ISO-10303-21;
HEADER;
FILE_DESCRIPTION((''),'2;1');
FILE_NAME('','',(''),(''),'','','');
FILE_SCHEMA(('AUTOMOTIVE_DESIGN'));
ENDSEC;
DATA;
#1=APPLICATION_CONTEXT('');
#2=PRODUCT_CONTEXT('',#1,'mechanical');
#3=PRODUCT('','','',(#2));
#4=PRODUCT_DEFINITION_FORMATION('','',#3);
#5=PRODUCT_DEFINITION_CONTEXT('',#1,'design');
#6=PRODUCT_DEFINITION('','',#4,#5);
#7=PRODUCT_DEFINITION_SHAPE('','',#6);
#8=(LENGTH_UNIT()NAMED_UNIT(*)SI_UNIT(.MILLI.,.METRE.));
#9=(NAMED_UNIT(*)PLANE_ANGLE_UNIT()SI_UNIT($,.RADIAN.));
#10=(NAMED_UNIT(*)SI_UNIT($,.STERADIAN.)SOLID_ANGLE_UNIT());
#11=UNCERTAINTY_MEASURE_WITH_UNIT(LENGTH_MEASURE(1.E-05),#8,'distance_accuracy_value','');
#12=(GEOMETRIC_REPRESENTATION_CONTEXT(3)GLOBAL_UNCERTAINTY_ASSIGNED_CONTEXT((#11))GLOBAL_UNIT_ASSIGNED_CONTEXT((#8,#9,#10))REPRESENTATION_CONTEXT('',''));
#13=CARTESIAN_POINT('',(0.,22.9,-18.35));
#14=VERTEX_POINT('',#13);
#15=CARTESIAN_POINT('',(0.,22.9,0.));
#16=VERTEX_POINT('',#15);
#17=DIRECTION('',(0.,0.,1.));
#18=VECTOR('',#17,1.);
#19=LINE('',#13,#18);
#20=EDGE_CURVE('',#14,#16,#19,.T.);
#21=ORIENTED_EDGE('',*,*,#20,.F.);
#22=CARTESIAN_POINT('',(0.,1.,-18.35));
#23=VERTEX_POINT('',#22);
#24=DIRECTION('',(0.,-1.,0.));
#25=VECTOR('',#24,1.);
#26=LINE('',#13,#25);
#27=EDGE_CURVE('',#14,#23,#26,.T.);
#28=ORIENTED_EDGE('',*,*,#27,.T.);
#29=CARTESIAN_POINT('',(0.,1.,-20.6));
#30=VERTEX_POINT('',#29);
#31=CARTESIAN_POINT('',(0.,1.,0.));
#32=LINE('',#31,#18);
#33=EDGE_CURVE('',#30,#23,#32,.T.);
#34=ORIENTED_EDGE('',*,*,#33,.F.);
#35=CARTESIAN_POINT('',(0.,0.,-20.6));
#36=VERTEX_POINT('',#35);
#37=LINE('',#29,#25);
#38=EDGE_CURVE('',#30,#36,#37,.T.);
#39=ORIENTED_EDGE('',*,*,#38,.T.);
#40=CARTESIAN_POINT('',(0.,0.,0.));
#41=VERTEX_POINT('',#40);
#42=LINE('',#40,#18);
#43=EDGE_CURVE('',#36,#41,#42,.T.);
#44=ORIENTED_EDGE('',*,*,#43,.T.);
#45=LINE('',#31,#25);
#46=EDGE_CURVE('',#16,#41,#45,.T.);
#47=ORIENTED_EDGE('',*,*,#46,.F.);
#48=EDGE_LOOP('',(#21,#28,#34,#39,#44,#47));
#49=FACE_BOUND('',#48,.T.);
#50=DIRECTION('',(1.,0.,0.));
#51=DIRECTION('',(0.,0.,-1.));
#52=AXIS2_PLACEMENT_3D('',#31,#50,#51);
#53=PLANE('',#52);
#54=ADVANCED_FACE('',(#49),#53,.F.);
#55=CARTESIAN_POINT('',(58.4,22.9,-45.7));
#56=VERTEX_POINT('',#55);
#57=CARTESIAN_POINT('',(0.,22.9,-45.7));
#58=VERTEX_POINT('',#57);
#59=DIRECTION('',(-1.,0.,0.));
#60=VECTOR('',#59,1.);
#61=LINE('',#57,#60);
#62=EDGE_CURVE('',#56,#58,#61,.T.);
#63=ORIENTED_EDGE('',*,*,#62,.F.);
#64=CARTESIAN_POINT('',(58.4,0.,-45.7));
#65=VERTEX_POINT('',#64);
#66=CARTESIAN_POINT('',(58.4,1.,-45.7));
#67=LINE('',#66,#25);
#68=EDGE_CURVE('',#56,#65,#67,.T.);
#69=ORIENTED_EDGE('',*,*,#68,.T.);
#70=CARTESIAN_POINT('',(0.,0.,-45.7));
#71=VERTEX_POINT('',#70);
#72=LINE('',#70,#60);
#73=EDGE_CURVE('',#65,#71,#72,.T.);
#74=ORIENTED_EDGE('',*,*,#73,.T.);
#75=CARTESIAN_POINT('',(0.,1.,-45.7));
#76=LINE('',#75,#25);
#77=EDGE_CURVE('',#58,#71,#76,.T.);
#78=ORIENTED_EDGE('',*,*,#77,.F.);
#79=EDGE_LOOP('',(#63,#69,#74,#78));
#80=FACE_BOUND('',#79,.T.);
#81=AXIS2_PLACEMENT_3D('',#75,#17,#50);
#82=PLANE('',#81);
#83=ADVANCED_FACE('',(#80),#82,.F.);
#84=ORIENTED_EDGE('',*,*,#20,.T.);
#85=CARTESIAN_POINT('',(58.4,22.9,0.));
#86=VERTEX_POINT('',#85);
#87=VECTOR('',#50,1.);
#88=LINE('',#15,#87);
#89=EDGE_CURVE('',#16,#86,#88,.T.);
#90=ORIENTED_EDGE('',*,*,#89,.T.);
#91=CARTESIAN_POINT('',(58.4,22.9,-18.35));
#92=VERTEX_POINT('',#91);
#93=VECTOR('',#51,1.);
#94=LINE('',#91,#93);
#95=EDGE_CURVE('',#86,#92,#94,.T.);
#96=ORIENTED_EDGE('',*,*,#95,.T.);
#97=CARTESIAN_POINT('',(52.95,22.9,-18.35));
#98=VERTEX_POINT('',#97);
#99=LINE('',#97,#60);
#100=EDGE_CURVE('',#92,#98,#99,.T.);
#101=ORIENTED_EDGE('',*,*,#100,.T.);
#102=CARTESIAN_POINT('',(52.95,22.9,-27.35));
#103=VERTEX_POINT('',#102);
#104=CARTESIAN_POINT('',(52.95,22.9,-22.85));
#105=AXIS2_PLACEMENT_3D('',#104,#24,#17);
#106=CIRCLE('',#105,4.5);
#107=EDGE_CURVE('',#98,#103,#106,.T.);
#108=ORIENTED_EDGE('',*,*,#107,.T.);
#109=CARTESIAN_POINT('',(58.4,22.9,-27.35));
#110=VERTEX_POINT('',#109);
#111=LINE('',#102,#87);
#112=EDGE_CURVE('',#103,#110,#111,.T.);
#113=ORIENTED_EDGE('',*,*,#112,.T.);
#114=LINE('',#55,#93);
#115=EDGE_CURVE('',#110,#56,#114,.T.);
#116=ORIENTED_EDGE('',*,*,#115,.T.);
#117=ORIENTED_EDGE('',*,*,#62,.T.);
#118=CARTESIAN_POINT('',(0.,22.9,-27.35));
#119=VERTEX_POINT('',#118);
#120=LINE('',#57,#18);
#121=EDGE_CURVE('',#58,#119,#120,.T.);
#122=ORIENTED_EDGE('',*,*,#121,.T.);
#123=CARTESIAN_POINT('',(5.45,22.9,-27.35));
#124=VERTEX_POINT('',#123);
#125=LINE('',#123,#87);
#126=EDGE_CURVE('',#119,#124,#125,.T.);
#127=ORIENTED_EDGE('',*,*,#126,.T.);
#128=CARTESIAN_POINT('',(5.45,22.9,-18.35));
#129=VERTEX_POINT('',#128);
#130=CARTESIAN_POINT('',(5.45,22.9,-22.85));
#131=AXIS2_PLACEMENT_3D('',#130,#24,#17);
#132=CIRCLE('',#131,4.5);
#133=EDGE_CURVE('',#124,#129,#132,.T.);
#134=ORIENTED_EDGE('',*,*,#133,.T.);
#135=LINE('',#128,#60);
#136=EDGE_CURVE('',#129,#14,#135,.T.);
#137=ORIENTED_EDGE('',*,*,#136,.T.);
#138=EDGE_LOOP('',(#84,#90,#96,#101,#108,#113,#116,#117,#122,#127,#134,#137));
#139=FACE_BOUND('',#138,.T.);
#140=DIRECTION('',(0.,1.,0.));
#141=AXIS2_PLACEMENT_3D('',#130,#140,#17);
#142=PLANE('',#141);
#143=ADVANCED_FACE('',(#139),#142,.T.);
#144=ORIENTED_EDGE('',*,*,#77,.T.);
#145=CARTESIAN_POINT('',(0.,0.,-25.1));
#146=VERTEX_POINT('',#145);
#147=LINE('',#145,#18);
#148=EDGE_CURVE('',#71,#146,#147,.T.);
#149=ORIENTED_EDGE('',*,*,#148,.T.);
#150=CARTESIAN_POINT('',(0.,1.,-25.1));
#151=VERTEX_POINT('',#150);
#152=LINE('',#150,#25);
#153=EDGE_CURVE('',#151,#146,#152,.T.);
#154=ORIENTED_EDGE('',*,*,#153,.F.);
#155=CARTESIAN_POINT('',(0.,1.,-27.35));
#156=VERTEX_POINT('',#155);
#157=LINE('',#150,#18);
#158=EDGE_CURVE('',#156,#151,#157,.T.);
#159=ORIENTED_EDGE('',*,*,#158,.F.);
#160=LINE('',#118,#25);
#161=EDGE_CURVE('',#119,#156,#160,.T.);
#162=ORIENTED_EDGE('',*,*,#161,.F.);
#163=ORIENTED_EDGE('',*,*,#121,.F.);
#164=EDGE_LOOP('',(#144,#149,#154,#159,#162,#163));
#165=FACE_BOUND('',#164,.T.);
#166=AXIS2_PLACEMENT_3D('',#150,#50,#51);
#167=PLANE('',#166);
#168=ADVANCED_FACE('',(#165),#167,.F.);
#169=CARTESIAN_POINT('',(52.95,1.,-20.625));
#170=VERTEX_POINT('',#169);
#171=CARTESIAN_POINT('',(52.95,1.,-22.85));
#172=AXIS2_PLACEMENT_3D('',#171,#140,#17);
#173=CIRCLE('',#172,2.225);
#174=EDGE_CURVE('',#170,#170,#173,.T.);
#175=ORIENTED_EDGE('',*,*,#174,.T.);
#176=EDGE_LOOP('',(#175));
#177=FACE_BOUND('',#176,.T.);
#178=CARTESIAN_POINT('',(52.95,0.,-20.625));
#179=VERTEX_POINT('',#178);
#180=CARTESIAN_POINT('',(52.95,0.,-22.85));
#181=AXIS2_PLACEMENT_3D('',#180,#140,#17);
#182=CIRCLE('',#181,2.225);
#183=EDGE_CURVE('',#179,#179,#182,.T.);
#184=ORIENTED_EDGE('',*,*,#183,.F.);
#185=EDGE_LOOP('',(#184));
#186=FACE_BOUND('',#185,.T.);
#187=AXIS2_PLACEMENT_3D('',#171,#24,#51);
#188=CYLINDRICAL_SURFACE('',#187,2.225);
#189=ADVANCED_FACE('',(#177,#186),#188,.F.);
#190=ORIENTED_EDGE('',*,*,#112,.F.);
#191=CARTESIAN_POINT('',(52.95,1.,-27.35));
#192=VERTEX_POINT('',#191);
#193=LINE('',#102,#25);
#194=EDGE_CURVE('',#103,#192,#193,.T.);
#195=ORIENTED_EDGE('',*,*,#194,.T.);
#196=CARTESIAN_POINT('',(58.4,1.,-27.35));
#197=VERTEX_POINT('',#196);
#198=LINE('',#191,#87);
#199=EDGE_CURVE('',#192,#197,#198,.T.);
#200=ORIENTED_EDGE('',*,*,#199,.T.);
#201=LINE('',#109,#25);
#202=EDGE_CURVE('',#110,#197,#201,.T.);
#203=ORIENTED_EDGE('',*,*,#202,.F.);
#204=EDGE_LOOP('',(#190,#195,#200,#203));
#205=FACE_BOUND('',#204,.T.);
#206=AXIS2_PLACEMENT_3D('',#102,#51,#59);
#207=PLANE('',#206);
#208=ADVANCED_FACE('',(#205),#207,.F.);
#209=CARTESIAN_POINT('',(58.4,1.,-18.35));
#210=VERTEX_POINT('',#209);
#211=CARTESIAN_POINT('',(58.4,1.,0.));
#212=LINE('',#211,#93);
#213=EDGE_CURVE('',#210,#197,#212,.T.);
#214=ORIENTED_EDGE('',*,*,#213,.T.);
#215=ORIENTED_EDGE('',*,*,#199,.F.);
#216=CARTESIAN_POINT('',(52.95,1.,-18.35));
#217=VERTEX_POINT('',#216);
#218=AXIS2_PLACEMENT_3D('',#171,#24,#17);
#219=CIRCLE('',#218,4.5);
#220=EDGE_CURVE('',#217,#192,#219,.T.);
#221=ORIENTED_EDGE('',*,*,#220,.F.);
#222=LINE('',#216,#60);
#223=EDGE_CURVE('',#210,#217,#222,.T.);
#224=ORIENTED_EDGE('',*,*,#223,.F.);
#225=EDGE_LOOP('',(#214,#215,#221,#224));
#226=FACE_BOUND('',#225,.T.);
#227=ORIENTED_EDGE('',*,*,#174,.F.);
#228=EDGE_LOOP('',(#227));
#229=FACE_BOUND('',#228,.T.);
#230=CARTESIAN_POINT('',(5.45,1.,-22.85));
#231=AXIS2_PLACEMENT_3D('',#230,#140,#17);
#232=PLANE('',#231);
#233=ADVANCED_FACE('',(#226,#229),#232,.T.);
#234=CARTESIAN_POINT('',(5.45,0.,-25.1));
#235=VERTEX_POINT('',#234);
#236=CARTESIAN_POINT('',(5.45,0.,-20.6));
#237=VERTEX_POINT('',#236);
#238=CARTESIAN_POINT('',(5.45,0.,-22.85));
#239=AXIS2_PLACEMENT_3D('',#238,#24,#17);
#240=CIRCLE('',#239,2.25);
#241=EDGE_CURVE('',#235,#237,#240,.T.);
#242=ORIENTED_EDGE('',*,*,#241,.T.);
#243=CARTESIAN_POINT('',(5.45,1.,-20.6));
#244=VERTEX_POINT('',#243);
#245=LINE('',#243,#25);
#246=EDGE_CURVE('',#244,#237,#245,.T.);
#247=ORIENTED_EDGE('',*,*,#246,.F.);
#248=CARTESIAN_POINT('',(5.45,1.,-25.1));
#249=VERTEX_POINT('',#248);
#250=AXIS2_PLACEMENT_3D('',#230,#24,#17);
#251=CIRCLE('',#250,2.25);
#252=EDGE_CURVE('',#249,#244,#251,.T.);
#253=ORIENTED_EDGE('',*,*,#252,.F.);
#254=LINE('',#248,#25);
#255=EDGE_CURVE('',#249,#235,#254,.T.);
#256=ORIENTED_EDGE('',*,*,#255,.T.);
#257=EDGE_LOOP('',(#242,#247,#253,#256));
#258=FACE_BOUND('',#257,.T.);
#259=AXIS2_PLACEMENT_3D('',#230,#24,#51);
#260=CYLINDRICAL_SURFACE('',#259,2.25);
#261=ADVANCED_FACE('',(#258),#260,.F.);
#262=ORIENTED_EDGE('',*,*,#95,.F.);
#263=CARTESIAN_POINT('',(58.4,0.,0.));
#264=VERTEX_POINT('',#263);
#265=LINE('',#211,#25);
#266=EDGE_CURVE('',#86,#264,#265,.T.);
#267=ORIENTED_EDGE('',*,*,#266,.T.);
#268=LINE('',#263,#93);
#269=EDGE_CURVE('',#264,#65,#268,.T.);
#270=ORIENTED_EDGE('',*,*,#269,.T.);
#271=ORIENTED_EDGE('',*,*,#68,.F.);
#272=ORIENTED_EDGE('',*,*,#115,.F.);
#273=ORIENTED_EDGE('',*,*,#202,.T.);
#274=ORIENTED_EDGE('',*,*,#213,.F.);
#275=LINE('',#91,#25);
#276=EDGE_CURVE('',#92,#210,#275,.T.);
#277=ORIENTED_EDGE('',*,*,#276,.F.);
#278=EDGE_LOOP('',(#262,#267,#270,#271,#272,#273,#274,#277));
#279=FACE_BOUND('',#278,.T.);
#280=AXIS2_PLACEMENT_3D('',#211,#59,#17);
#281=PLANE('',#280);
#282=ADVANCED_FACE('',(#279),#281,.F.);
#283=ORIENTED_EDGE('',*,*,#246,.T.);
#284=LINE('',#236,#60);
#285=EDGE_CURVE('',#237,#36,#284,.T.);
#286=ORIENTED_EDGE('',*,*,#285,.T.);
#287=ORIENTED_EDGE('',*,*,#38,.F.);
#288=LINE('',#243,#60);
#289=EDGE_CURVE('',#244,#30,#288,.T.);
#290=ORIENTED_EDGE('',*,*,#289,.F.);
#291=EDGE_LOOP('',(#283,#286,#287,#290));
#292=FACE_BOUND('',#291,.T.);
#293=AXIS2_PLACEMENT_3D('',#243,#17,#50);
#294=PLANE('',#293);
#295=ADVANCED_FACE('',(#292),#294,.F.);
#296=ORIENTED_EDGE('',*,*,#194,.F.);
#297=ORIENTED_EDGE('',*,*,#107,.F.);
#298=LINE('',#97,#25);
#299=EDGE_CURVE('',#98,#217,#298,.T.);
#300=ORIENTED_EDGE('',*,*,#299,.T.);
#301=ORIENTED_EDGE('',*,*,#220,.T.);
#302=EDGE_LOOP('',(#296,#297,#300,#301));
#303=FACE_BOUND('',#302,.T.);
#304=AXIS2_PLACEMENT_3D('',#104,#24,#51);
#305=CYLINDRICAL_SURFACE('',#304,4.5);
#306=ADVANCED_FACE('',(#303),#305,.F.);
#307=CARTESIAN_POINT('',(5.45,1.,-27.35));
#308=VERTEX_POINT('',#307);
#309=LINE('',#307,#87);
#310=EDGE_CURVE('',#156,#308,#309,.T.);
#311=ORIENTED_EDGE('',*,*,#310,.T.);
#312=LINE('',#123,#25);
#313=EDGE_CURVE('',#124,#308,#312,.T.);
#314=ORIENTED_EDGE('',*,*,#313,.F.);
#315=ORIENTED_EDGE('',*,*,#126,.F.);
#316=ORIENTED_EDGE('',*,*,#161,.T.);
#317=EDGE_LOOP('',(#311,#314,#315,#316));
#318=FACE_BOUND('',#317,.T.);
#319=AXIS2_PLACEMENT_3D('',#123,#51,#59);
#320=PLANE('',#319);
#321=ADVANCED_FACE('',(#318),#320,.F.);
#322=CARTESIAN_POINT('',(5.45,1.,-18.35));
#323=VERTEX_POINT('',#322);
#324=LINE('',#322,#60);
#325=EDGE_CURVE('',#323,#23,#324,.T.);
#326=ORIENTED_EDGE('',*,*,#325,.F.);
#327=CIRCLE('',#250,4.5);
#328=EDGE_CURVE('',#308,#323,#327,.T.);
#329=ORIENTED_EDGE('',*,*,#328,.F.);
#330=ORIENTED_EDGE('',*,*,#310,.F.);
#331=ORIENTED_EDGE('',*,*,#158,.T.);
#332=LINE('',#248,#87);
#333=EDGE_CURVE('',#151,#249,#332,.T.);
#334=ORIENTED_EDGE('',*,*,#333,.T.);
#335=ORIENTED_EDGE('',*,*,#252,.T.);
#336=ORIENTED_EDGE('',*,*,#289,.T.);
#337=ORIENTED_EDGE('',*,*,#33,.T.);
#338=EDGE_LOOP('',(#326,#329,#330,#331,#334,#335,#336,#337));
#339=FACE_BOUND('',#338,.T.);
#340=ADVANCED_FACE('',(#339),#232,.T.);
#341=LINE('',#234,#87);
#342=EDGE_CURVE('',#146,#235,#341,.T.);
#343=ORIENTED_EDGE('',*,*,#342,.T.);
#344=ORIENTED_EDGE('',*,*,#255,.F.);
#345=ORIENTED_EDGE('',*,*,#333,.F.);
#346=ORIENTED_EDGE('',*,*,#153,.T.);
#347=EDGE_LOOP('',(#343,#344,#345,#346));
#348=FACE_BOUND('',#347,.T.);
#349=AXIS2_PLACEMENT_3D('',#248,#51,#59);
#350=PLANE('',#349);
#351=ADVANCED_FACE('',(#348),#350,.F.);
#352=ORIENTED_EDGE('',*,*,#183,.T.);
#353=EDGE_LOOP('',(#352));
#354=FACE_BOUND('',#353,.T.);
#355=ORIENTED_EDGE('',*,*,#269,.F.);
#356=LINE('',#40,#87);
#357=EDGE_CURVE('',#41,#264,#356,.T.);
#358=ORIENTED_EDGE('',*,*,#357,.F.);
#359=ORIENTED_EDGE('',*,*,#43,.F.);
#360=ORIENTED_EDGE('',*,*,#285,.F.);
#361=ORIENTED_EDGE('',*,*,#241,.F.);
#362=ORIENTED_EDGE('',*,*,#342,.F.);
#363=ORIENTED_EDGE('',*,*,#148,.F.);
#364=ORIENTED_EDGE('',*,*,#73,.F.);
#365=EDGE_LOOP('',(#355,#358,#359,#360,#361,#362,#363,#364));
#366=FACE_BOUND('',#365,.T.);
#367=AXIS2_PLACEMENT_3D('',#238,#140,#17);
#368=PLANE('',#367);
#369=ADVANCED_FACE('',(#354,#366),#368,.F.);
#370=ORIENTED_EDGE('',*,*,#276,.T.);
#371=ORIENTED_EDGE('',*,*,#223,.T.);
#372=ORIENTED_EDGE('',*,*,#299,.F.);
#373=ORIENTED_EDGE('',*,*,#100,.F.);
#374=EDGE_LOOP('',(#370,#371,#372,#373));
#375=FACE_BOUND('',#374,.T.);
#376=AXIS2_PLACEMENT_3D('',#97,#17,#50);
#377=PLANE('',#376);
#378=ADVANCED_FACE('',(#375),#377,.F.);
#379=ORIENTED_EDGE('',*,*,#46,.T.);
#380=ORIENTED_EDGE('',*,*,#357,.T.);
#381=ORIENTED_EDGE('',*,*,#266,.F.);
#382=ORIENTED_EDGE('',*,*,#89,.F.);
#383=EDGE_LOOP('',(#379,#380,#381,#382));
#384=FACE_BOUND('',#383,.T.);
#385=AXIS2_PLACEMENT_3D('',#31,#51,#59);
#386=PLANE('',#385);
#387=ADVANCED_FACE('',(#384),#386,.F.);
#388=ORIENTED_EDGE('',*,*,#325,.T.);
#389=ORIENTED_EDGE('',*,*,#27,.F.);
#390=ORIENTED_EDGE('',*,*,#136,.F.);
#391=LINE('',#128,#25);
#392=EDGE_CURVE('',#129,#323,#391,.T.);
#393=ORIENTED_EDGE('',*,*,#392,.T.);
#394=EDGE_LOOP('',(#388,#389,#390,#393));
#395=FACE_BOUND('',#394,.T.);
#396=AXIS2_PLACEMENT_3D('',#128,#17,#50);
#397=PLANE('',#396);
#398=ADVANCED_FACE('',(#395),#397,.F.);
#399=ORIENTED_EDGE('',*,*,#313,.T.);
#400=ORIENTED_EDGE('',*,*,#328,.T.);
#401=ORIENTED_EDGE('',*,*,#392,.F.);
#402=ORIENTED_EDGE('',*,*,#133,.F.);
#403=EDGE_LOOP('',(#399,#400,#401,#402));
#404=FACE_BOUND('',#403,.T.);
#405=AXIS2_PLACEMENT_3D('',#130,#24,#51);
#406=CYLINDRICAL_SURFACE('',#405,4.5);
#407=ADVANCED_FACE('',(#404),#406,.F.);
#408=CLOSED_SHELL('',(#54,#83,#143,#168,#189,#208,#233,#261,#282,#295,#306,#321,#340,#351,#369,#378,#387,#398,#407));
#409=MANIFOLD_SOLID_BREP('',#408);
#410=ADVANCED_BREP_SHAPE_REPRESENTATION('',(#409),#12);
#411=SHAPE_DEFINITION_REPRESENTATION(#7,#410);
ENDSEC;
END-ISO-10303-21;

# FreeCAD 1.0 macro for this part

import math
import FreeCAD as App
import Part
import Sketcher

doc = App.newDocument("Part")
body = doc.addObject("PartDesign::Body", "Body")

# Sketch on XZ plane
sketch1 = body.newObject("Sketcher::SketchObject", "Sketch")
sketch1.AttachmentSupport = (doc.getObject("XZ_Plane"), [""])
sketch1.MapMode = "FlatFace"
sketch1.addGeometry(Part.LineSegment(App.Vector(0, -25.1, 0), App.Vector(5.5, -25.1, 0)), False)
sketch1.addGeometry(Part.ArcOfCircle(Part.Circle(App.Vector(5.5, -22.9, 0), App.Vector(0, 0, 1), 2.2), math.radians(-90), math.radians(90)), False)
sketch1.addGeometry(Part.LineSegment(App.Vector(5.5, -20.6, 0), App.Vector(0, -20.6, 0)), False)
sketch1.addGeometry(Part.LineSegment(App.Vector(0, -20.6, 0), App.Vector(0, 0, 0)), False)
sketch1.addGeometry(Part.LineSegment(App.Vector(0, 0, 0), App.Vector(58.4, 0, 0)), False)
sketch1.addGeometry(Part.LineSegment(App.Vector(58.4, 0, 0), App.Vector(58.4, -45.7, 0)), False)
sketch1.addGeometry(Part.LineSegment(App.Vector(58.4, -45.7, 0), App.Vector(0, -45.7, 0)), False)
sketch1.addGeometry(Part.LineSegment(App.Vector(0, -45.7, 0), App.Vector(0, -25.1, 0)), False)
sketch1.addGeometry(Part.Circle(App.Vector(53, -22.9, 0), App.Vector(0, 0, 1), 2.2), False)
sketch1.addConstraint(Sketcher.Constraint("Tangent", 0, 2, 1, 1))
sketch1.addConstraint(Sketcher.Constraint("Tangent", 1, 2, 2, 1))
sketch1.addConstraint(Sketcher.Constraint("Coincident", 2, 2, 3, 1))
sketch1.addConstraint(Sketcher.Constraint("Coincident", 3, 2, 4, 1))
sketch1.addConstraint(Sketcher.Constraint("Coincident", 4, 2, 5, 1))
sketch1.addConstraint(Sketcher.Constraint("Coincident", 5, 2, 6, 1))
sketch1.addConstraint(Sketcher.Constraint("Coincident", 6, 2, 7, 1))
sketch1.addConstraint(Sketcher.Constraint("Coincident", 7, 2, 0, 1))
sketch1.addConstraint(Sketcher.Constraint("Horizontal", 0))
sketch1.addConstraint(Sketcher.Constraint("Horizontal", 2))
sketch1.addConstraint(Sketcher.Constraint("Vertical", 3))
sketch1.addConstraint(Sketcher.Constraint("Horizontal", 4))
sketch1.addConstraint(Sketcher.Constraint("Vertical", 5))
sketch1.addConstraint(Sketcher.Constraint("Horizontal", 6))
sketch1.addConstraint(Sketcher.Constraint("Vertical", 7))
sketch1.addConstraint(Sketcher.Constraint("Coincident", 3, 2, -1, 1))
sketch1.addConstraint(Sketcher.Constraint("PointOnObject", 6, 2, -2))
sketch1.addConstraint(Sketcher.Constraint("Horizontal", 1, 3, 8, 3))
sketch1.addConstraint(Sketcher.Constraint("Equal", 3, 7))
sketch1.addConstraint(Sketcher.Constraint("Diameter", 8, 4.45))
sketch1.addConstraint(Sketcher.Constraint("Radius", 1, 2.25))
sketch1.addConstraint(Sketcher.Constraint("DistanceX", 4, 1, 4, 2, 58.4))
sketch1.addConstraint(Sketcher.Constraint("DistanceY", 3, 1, 3, 2, 20.6))
sketch1.addConstraint(Sketcher.Constraint("DistanceX", 0, 1, 0, 2, 5.45))
sketch1.addConstraint(Sketcher.Constraint("DistanceX", 1, 3, 8, 3, 47.5))
pad1 = body.newObject("PartDesign::Pad", "Pad")
pad1.Profile = sketch1
pad1.Length = 1
pad1.Reversed = True

# Sketch on XZ plane
sketch2 = body.newObject("Sketcher::SketchObject", "Sketch001")
sketch2.AttachmentSupport = (doc.getObject("XZ_Plane"), [""])
sketch2.MapMode = "FlatFace"
sketch2.AttachmentOffset = App.Placement(App.Vector(0, 0, -1), App.Rotation())
sketch2.addGeometry(Part.LineSegment(App.Vector(53, -27.4, 0), App.Vector(58.4, -27.4, 0)), False)
sketch2.addGeometry(Part.LineSegment(App.Vector(58.4, -27.4, 0), App.Vector(58.4, -45.7, 0)), False)
sketch2.addGeometry(Part.LineSegment(App.Vector(58.4, -45.7, 0), App.Vector(0, -45.7, 0)), False)
sketch2.addGeometry(Part.LineSegment(App.Vector(0, -45.7, 0), App.Vector(0, -27.4, 0)), False)
sketch2.addGeometry(Part.LineSegment(App.Vector(0, -27.4, 0), App.Vector(5.5, -27.4, 0)), False)
sketch2.addGeometry(Part.ArcOfCircle(Part.Circle(App.Vector(5.5, -22.9, 0), App.Vector(0, 0, 1), 4.5), math.radians(-90), math.radians(90)), False)
sketch2.addGeometry(Part.LineSegment(App.Vector(5.5, -18.4, 0), App.Vector(0, -18.4, 0)), False)
sketch2.addGeometry(Part.LineSegment(App.Vector(0, -18.4, 0), App.Vector(0, 0, 0)), False)
sketch2.addGeometry(Part.LineSegment(App.Vector(0, 0, 0), App.Vector(58.4, 0, 0)), False)
sketch2.addGeometry(Part.LineSegment(App.Vector(58.4, 0, 0), App.Vector(58.4, -18.4, 0)), False)
sketch2.addGeometry(Part.LineSegment(App.Vector(58.4, -18.4, 0), App.Vector(53, -18.4, 0)), False)
sketch2.addGeometry(Part.ArcOfCircle(Part.Circle(App.Vector(53, -22.9, 0), App.Vector(0, 0, 1), 4.5), math.radians(90), math.radians(270)), False)
sketch2.addConstraint(Sketcher.Constraint("Coincident", 0, 2, 1, 1))
sketch2.addConstraint(Sketcher.Constraint("Coincident", 1, 2, 2, 1))
sketch2.addConstraint(Sketcher.Constraint("Coincident", 2, 2, 3, 1))
sketch2.addConstraint(Sketcher.Constraint("Coincident", 3, 2, 4, 1))
sketch2.addConstraint(Sketcher.Constraint("Tangent", 4, 2, 5, 1))
sketch2.addConstraint(Sketcher.Constraint("Tangent", 5, 2, 6, 1))
sketch2.addConstraint(Sketcher.Constraint("Coincident", 6, 2, 7, 1))
sketch2.addConstraint(Sketcher.Constraint("Coincident", 7, 2, 8, 1))
sketch2.addConstraint(Sketcher.Constraint("Coincident", 8, 2, 9, 1))
sketch2.addConstraint(Sketcher.Constraint("Coincident", 9, 2, 10, 1))
sketch2.addConstraint(Sketcher.Constraint("Tangent", 10, 2, 11, 1))
sketch2.addConstraint(Sketcher.Constraint("Tangent", 11, 2, 0, 1))
sketch2.addConstraint(Sketcher.Constraint("Horizontal", 0))
sketch2.addConstraint(Sketcher.Constraint("Vertical", 1))
sketch2.addConstraint(Sketcher.Constraint("Horizontal", 2))
sketch2.addConstraint(Sketcher.Constraint("Vertical", 3))
sketch2.addConstraint(Sketcher.Constraint("Horizontal", 4))
sketch2.addConstraint(Sketcher.Constraint("Horizontal", 6))
sketch2.addConstraint(Sketcher.Constraint("Vertical", 7))
sketch2.addConstraint(Sketcher.Constraint("Horizontal", 8))
sketch2.addConstraint(Sketcher.Constraint("Vertical", 9))
sketch2.addConstraint(Sketcher.Constraint("Horizontal", 10))
sketch2.addConstraint(Sketcher.Constraint("Coincident", 7, 2, -1, 1))
sketch2.addConstraint(Sketcher.Constraint("Equal", 5, 11))
sketch2.addConstraint(Sketcher.Constraint("PointOnObject", 2, 2, -2))
sketch2.addConstraint(Sketcher.Constraint("Horizontal", 5, 3, 11, 3))
sketch2.addConstraint(Sketcher.Constraint("Vertical", 1, 2, 8, 2))
sketch2.addConstraint(Sketcher.Constraint("Equal", 0, 4))
sketch2.addConstraint(Sketcher.Constraint("Equal", 3, 7))
sketch2.addConstraint(Sketcher.Constraint("Radius", 5, 4.5))
sketch2.addConstraint(Sketcher.Constraint("DistanceX", 2, 2, 2, 1, 58.4))
sketch2.addConstraint(Sketcher.Constraint("DistanceX", 0, 1, 0, 2, 5.45))
sketch2.addConstraint(Sketcher.Constraint("DistanceY", 1, 2, 1, 1, 18.35))
pad2 = body.newObject("PartDesign::Pad", "Pad001")
pad2.Profile = sketch2
pad2.Length = 21.9
pad2.Reversed = True

doc.recompute()
